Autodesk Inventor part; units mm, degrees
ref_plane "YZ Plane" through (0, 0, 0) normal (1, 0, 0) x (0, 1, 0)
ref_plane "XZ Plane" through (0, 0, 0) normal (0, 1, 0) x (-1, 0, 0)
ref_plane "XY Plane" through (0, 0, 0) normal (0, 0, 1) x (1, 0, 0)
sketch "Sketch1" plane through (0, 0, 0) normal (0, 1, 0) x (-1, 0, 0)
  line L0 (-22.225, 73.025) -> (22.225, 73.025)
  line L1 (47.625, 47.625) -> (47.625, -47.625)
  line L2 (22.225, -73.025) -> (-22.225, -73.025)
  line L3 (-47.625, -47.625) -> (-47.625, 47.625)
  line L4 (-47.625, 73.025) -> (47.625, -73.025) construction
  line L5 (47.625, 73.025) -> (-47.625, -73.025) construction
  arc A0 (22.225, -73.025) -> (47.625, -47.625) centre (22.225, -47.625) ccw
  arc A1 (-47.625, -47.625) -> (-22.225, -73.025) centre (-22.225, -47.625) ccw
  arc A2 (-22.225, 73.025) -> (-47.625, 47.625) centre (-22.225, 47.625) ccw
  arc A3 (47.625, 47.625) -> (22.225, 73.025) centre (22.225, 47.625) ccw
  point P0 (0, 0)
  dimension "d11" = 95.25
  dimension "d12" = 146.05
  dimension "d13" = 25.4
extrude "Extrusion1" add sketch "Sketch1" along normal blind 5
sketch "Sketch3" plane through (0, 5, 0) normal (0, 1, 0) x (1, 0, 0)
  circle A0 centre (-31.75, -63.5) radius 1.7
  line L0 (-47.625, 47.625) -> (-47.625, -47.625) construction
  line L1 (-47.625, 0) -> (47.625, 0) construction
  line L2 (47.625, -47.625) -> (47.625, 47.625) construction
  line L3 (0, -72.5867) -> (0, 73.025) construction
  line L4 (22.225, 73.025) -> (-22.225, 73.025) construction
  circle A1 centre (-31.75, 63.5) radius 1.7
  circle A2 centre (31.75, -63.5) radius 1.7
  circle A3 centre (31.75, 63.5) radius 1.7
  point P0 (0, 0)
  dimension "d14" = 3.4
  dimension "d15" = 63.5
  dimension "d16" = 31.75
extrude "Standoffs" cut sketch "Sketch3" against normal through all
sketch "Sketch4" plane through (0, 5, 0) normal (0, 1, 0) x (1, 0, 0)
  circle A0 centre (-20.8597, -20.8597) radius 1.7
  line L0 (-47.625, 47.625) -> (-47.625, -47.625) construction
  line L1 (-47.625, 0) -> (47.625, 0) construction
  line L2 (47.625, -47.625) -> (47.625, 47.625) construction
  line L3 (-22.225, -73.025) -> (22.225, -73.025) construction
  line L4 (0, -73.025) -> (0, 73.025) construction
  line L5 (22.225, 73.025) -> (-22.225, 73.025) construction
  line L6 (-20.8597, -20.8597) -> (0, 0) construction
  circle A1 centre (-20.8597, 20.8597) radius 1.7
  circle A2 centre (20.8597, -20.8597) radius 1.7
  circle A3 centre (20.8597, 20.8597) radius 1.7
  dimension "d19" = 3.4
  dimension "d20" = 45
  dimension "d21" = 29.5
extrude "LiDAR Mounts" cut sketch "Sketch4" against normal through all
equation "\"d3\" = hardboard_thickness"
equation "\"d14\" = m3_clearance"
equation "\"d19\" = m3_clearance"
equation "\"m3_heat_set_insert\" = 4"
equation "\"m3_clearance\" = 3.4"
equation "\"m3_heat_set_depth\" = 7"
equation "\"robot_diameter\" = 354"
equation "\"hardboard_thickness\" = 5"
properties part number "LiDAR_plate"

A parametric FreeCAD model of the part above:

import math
import FreeCAD as App
import Part
import Sketcher
from FreeCAD import Vector

doc = App.newDocument("Part")
params = doc.addObject("Spreadsheet::Sheet", "Params")
for row, (alias, value) in enumerate([
    ("sketch1_radius", "25.4 mm"),
    ("sketch1_height", "95.25 mm"),
    ("pad1_length", "5 mm"),
    ("sketch2_diameter", "3.4 mm"),
    ("sketch3_diameter", "3.4 mm"),
], start=1):
    params.set(f"A{row}", alias)
    params.set(f"B{row}", "=" + value)
    params.setAlias(f"B{row}", alias)

body = doc.addObject("PartDesign::Body", "Body")

# Sketch on XZ plane
sketch1 = doc.addObject("Sketcher::SketchObject", "Sketch")
body.addObject(sketch1)
sketch1.AttachmentSupport = (doc.XZ_Plane, [""])
sketch1.MapMode = "FlatFace"
sketch1.addGeometry(Part.LineSegment(Vector(-22, 73, 0), Vector(22, 73, 0)), False)
sketch1.addGeometry(Part.ArcOfCircle(Part.Circle(Vector(22, 48, 0), Vector(0, 0, 1), 25), math.radians(0), math.radians(90)), False)
sketch1.addGeometry(Part.LineSegment(Vector(48, 48, 0), Vector(48, -48, 0)), False)
sketch1.addGeometry(Part.ArcOfCircle(Part.Circle(Vector(22, -48, 0), Vector(0, 0, 1), 25), math.radians(-90), math.radians(0)), False)
sketch1.addGeometry(Part.LineSegment(Vector(22, -73, 0), Vector(-22, -73, 0)), False)
sketch1.addGeometry(Part.ArcOfCircle(Part.Circle(Vector(-22, -48, 0), Vector(0, 0, 1), 25), math.radians(180), math.radians(270)), False)
sketch1.addGeometry(Part.LineSegment(Vector(-48, -48, 0), Vector(-48, 48, 0)), False)
sketch1.addGeometry(Part.ArcOfCircle(Part.Circle(Vector(-22, 48, 0), Vector(0, 0, 1), 25), math.radians(90), math.radians(180)), False)
sketch1.addConstraint(Sketcher.Constraint("Tangent", 0, 2, 1, 2))
sketch1.addConstraint(Sketcher.Constraint("Tangent", 1, 1, 2, 1))
sketch1.addConstraint(Sketcher.Constraint("Tangent", 2, 2, 3, 2))
sketch1.addConstraint(Sketcher.Constraint("Tangent", 3, 1, 4, 1))
sketch1.addConstraint(Sketcher.Constraint("Tangent", 4, 2, 5, 2))
sketch1.addConstraint(Sketcher.Constraint("Tangent", 5, 1, 6, 1))
sketch1.addConstraint(Sketcher.Constraint("Tangent", 6, 2, 7, 2))
sketch1.addConstraint(Sketcher.Constraint("Tangent", 7, 1, 0, 1))
sketch1.addConstraint(Sketcher.Constraint("Horizontal", 0))
sketch1.addConstraint(Sketcher.Constraint("Vertical", 2))
sketch1.addConstraint(Sketcher.Constraint("Horizontal", 4))
sketch1.addConstraint(Sketcher.Constraint("Vertical", 6))
sketch1.addConstraint(Sketcher.Constraint("Equal", 1, 3))
sketch1.addConstraint(Sketcher.Constraint("Equal", 3, 5))
sketch1.addConstraint(Sketcher.Constraint("Equal", 5, 7))
sketch1.addConstraint(Sketcher.Constraint("Symmetric", 1, 3, 5, 3, -1, 1))
sketch1.addConstraint(Sketcher.Constraint("Radius", 1, 25.4))
sketch1.addConstraint(Sketcher.Constraint("DistanceY", 2, 2, 2, 1, 95.25))
sketch1.addConstraint(Sketcher.Constraint("DistanceX", 5, 1, 2, 2, 95.25))
sketch1.setExpression("Constraints[16]", "Params.sketch1_radius")
sketch1.setExpression("Constraints[17]", "Params.sketch1_height")
pad1 = doc.addObject("PartDesign::Pad", "Pad")
body.addObject(pad1)
pad1.Profile = sketch1
pad1.setExpression("Length", "Params.pad1_length")
pad1.Reversed = True

# Sketch on XZ plane
sketch2 = doc.addObject("Sketcher::SketchObject", "Sketch001")
body.addObject(sketch2)
sketch2.AttachmentSupport = (doc.XZ_Plane, [""])
sketch2.MapMode = "FlatFace"
sketch2.AttachmentOffset = App.Placement(Vector(0, 0, -5), App.Rotation())
sketch2.addGeometry(Part.Circle(Vector(-31.8, 63.5, 0), Vector(0, 0, 1), 1.7), False)
sketch2.addGeometry(Part.Circle(Vector(-31.8, -63.5, 0), Vector(0, 0, 1), 1.7), False)
sketch2.addGeometry(Part.Circle(Vector(31.8, 63.5, 0), Vector(0, 0, 1), 1.7), False)
sketch2.addGeometry(Part.Circle(Vector(31.8, -63.5, 0), Vector(0, 0, 1), 1.7), False)
sketch2.addConstraint(Sketcher.Constraint("Equal", 0, 1))
sketch2.addConstraint(Sketcher.Constraint("Equal", 1, 2))
sketch2.addConstraint(Sketcher.Constraint("Equal", 2, 3))
sketch2.addConstraint(Sketcher.Constraint("Symmetric", 1, 3, 2, 3, -1, 1))
sketch2.addConstraint(Sketcher.Constraint("Symmetric", 0, 3, 3, 3, -1, 1))
sketch2.addConstraint(Sketcher.Constraint("Symmetric", 0, 3, 2, 3, -2))
sketch2.addConstraint(Sketcher.Constraint("Diameter", 0, 3.4))
sketch2.addConstraint(Sketcher.Constraint("DistanceY", -1, 1, 0, 3, 63.5))
sketch2.addConstraint(Sketcher.Constraint("DistanceX", 0, 3, 2, 3, 63.5))
sketch2.setExpression("Constraints[6]", "Params.sketch2_diameter")
pocket1 = doc.addObject("PartDesign::Pocket", "Pocket")
body.addObject(pocket1)
pocket1.Profile = sketch2
pocket1.Type = "ThroughAll"
pocket1.Reversed = True

# Sketch on XZ plane
sketch3 = doc.addObject("Sketcher::SketchObject", "Sketch002")
body.addObject(sketch3)
sketch3.AttachmentSupport = (doc.XZ_Plane, [""])
sketch3.MapMode = "FlatFace"
sketch3.AttachmentOffset = App.Placement(Vector(0, 0, -5), App.Rotation())
sketch3.addGeometry(Part.Circle(Vector(-20.9, 20.9, 0), Vector(0, 0, 1), 1.7), False)
sketch3.addGeometry(Part.Circle(Vector(-20.9, -20.9, 0), Vector(0, 0, 1), 1.7), False)
sketch3.addGeometry(Part.Circle(Vector(20.9, 20.9, 0), Vector(0, 0, 1), 1.7), False)
sketch3.addGeometry(Part.Circle(Vector(20.9, -20.9, 0), Vector(0, 0, 1), 1.7), False)
sketch3.addConstraint(Sketcher.Constraint("Equal", 0, 1))
sketch3.addConstraint(Sketcher.Constraint("Equal", 1, 2))
sketch3.addConstraint(Sketcher.Constraint("Equal", 2, 3))
sketch3.addConstraint(Sketcher.Constraint("Symmetric", 1, 3, 2, 3, -1, 1))
sketch3.addConstraint(Sketcher.Constraint("Symmetric", 0, 3, 3, 3, -1, 1))
sketch3.addConstraint(Sketcher.Constraint("Symmetric", 0, 3, 2, 3, -2))
sketch3.addConstraint(Sketcher.Constraint("Diameter", 0, 3.4))
sketch3.addConstraint(Sketcher.Constraint("DistanceX", 0, 3, -1, 1, 20.8597))
sketch3.addConstraint(Sketcher.Constraint("DistanceY", -1, 1, 0, 3, 20.8597))
sketch3.setExpression("Constraints[6]", "Params.sketch3_diameter")
pocket2 = doc.addObject("PartDesign::Pocket", "Pocket001")
body.addObject(pocket2)
pocket2.Profile = sketch3
pocket2.Type = "ThroughAll"
pocket2.Reversed = True

doc.recompute()
